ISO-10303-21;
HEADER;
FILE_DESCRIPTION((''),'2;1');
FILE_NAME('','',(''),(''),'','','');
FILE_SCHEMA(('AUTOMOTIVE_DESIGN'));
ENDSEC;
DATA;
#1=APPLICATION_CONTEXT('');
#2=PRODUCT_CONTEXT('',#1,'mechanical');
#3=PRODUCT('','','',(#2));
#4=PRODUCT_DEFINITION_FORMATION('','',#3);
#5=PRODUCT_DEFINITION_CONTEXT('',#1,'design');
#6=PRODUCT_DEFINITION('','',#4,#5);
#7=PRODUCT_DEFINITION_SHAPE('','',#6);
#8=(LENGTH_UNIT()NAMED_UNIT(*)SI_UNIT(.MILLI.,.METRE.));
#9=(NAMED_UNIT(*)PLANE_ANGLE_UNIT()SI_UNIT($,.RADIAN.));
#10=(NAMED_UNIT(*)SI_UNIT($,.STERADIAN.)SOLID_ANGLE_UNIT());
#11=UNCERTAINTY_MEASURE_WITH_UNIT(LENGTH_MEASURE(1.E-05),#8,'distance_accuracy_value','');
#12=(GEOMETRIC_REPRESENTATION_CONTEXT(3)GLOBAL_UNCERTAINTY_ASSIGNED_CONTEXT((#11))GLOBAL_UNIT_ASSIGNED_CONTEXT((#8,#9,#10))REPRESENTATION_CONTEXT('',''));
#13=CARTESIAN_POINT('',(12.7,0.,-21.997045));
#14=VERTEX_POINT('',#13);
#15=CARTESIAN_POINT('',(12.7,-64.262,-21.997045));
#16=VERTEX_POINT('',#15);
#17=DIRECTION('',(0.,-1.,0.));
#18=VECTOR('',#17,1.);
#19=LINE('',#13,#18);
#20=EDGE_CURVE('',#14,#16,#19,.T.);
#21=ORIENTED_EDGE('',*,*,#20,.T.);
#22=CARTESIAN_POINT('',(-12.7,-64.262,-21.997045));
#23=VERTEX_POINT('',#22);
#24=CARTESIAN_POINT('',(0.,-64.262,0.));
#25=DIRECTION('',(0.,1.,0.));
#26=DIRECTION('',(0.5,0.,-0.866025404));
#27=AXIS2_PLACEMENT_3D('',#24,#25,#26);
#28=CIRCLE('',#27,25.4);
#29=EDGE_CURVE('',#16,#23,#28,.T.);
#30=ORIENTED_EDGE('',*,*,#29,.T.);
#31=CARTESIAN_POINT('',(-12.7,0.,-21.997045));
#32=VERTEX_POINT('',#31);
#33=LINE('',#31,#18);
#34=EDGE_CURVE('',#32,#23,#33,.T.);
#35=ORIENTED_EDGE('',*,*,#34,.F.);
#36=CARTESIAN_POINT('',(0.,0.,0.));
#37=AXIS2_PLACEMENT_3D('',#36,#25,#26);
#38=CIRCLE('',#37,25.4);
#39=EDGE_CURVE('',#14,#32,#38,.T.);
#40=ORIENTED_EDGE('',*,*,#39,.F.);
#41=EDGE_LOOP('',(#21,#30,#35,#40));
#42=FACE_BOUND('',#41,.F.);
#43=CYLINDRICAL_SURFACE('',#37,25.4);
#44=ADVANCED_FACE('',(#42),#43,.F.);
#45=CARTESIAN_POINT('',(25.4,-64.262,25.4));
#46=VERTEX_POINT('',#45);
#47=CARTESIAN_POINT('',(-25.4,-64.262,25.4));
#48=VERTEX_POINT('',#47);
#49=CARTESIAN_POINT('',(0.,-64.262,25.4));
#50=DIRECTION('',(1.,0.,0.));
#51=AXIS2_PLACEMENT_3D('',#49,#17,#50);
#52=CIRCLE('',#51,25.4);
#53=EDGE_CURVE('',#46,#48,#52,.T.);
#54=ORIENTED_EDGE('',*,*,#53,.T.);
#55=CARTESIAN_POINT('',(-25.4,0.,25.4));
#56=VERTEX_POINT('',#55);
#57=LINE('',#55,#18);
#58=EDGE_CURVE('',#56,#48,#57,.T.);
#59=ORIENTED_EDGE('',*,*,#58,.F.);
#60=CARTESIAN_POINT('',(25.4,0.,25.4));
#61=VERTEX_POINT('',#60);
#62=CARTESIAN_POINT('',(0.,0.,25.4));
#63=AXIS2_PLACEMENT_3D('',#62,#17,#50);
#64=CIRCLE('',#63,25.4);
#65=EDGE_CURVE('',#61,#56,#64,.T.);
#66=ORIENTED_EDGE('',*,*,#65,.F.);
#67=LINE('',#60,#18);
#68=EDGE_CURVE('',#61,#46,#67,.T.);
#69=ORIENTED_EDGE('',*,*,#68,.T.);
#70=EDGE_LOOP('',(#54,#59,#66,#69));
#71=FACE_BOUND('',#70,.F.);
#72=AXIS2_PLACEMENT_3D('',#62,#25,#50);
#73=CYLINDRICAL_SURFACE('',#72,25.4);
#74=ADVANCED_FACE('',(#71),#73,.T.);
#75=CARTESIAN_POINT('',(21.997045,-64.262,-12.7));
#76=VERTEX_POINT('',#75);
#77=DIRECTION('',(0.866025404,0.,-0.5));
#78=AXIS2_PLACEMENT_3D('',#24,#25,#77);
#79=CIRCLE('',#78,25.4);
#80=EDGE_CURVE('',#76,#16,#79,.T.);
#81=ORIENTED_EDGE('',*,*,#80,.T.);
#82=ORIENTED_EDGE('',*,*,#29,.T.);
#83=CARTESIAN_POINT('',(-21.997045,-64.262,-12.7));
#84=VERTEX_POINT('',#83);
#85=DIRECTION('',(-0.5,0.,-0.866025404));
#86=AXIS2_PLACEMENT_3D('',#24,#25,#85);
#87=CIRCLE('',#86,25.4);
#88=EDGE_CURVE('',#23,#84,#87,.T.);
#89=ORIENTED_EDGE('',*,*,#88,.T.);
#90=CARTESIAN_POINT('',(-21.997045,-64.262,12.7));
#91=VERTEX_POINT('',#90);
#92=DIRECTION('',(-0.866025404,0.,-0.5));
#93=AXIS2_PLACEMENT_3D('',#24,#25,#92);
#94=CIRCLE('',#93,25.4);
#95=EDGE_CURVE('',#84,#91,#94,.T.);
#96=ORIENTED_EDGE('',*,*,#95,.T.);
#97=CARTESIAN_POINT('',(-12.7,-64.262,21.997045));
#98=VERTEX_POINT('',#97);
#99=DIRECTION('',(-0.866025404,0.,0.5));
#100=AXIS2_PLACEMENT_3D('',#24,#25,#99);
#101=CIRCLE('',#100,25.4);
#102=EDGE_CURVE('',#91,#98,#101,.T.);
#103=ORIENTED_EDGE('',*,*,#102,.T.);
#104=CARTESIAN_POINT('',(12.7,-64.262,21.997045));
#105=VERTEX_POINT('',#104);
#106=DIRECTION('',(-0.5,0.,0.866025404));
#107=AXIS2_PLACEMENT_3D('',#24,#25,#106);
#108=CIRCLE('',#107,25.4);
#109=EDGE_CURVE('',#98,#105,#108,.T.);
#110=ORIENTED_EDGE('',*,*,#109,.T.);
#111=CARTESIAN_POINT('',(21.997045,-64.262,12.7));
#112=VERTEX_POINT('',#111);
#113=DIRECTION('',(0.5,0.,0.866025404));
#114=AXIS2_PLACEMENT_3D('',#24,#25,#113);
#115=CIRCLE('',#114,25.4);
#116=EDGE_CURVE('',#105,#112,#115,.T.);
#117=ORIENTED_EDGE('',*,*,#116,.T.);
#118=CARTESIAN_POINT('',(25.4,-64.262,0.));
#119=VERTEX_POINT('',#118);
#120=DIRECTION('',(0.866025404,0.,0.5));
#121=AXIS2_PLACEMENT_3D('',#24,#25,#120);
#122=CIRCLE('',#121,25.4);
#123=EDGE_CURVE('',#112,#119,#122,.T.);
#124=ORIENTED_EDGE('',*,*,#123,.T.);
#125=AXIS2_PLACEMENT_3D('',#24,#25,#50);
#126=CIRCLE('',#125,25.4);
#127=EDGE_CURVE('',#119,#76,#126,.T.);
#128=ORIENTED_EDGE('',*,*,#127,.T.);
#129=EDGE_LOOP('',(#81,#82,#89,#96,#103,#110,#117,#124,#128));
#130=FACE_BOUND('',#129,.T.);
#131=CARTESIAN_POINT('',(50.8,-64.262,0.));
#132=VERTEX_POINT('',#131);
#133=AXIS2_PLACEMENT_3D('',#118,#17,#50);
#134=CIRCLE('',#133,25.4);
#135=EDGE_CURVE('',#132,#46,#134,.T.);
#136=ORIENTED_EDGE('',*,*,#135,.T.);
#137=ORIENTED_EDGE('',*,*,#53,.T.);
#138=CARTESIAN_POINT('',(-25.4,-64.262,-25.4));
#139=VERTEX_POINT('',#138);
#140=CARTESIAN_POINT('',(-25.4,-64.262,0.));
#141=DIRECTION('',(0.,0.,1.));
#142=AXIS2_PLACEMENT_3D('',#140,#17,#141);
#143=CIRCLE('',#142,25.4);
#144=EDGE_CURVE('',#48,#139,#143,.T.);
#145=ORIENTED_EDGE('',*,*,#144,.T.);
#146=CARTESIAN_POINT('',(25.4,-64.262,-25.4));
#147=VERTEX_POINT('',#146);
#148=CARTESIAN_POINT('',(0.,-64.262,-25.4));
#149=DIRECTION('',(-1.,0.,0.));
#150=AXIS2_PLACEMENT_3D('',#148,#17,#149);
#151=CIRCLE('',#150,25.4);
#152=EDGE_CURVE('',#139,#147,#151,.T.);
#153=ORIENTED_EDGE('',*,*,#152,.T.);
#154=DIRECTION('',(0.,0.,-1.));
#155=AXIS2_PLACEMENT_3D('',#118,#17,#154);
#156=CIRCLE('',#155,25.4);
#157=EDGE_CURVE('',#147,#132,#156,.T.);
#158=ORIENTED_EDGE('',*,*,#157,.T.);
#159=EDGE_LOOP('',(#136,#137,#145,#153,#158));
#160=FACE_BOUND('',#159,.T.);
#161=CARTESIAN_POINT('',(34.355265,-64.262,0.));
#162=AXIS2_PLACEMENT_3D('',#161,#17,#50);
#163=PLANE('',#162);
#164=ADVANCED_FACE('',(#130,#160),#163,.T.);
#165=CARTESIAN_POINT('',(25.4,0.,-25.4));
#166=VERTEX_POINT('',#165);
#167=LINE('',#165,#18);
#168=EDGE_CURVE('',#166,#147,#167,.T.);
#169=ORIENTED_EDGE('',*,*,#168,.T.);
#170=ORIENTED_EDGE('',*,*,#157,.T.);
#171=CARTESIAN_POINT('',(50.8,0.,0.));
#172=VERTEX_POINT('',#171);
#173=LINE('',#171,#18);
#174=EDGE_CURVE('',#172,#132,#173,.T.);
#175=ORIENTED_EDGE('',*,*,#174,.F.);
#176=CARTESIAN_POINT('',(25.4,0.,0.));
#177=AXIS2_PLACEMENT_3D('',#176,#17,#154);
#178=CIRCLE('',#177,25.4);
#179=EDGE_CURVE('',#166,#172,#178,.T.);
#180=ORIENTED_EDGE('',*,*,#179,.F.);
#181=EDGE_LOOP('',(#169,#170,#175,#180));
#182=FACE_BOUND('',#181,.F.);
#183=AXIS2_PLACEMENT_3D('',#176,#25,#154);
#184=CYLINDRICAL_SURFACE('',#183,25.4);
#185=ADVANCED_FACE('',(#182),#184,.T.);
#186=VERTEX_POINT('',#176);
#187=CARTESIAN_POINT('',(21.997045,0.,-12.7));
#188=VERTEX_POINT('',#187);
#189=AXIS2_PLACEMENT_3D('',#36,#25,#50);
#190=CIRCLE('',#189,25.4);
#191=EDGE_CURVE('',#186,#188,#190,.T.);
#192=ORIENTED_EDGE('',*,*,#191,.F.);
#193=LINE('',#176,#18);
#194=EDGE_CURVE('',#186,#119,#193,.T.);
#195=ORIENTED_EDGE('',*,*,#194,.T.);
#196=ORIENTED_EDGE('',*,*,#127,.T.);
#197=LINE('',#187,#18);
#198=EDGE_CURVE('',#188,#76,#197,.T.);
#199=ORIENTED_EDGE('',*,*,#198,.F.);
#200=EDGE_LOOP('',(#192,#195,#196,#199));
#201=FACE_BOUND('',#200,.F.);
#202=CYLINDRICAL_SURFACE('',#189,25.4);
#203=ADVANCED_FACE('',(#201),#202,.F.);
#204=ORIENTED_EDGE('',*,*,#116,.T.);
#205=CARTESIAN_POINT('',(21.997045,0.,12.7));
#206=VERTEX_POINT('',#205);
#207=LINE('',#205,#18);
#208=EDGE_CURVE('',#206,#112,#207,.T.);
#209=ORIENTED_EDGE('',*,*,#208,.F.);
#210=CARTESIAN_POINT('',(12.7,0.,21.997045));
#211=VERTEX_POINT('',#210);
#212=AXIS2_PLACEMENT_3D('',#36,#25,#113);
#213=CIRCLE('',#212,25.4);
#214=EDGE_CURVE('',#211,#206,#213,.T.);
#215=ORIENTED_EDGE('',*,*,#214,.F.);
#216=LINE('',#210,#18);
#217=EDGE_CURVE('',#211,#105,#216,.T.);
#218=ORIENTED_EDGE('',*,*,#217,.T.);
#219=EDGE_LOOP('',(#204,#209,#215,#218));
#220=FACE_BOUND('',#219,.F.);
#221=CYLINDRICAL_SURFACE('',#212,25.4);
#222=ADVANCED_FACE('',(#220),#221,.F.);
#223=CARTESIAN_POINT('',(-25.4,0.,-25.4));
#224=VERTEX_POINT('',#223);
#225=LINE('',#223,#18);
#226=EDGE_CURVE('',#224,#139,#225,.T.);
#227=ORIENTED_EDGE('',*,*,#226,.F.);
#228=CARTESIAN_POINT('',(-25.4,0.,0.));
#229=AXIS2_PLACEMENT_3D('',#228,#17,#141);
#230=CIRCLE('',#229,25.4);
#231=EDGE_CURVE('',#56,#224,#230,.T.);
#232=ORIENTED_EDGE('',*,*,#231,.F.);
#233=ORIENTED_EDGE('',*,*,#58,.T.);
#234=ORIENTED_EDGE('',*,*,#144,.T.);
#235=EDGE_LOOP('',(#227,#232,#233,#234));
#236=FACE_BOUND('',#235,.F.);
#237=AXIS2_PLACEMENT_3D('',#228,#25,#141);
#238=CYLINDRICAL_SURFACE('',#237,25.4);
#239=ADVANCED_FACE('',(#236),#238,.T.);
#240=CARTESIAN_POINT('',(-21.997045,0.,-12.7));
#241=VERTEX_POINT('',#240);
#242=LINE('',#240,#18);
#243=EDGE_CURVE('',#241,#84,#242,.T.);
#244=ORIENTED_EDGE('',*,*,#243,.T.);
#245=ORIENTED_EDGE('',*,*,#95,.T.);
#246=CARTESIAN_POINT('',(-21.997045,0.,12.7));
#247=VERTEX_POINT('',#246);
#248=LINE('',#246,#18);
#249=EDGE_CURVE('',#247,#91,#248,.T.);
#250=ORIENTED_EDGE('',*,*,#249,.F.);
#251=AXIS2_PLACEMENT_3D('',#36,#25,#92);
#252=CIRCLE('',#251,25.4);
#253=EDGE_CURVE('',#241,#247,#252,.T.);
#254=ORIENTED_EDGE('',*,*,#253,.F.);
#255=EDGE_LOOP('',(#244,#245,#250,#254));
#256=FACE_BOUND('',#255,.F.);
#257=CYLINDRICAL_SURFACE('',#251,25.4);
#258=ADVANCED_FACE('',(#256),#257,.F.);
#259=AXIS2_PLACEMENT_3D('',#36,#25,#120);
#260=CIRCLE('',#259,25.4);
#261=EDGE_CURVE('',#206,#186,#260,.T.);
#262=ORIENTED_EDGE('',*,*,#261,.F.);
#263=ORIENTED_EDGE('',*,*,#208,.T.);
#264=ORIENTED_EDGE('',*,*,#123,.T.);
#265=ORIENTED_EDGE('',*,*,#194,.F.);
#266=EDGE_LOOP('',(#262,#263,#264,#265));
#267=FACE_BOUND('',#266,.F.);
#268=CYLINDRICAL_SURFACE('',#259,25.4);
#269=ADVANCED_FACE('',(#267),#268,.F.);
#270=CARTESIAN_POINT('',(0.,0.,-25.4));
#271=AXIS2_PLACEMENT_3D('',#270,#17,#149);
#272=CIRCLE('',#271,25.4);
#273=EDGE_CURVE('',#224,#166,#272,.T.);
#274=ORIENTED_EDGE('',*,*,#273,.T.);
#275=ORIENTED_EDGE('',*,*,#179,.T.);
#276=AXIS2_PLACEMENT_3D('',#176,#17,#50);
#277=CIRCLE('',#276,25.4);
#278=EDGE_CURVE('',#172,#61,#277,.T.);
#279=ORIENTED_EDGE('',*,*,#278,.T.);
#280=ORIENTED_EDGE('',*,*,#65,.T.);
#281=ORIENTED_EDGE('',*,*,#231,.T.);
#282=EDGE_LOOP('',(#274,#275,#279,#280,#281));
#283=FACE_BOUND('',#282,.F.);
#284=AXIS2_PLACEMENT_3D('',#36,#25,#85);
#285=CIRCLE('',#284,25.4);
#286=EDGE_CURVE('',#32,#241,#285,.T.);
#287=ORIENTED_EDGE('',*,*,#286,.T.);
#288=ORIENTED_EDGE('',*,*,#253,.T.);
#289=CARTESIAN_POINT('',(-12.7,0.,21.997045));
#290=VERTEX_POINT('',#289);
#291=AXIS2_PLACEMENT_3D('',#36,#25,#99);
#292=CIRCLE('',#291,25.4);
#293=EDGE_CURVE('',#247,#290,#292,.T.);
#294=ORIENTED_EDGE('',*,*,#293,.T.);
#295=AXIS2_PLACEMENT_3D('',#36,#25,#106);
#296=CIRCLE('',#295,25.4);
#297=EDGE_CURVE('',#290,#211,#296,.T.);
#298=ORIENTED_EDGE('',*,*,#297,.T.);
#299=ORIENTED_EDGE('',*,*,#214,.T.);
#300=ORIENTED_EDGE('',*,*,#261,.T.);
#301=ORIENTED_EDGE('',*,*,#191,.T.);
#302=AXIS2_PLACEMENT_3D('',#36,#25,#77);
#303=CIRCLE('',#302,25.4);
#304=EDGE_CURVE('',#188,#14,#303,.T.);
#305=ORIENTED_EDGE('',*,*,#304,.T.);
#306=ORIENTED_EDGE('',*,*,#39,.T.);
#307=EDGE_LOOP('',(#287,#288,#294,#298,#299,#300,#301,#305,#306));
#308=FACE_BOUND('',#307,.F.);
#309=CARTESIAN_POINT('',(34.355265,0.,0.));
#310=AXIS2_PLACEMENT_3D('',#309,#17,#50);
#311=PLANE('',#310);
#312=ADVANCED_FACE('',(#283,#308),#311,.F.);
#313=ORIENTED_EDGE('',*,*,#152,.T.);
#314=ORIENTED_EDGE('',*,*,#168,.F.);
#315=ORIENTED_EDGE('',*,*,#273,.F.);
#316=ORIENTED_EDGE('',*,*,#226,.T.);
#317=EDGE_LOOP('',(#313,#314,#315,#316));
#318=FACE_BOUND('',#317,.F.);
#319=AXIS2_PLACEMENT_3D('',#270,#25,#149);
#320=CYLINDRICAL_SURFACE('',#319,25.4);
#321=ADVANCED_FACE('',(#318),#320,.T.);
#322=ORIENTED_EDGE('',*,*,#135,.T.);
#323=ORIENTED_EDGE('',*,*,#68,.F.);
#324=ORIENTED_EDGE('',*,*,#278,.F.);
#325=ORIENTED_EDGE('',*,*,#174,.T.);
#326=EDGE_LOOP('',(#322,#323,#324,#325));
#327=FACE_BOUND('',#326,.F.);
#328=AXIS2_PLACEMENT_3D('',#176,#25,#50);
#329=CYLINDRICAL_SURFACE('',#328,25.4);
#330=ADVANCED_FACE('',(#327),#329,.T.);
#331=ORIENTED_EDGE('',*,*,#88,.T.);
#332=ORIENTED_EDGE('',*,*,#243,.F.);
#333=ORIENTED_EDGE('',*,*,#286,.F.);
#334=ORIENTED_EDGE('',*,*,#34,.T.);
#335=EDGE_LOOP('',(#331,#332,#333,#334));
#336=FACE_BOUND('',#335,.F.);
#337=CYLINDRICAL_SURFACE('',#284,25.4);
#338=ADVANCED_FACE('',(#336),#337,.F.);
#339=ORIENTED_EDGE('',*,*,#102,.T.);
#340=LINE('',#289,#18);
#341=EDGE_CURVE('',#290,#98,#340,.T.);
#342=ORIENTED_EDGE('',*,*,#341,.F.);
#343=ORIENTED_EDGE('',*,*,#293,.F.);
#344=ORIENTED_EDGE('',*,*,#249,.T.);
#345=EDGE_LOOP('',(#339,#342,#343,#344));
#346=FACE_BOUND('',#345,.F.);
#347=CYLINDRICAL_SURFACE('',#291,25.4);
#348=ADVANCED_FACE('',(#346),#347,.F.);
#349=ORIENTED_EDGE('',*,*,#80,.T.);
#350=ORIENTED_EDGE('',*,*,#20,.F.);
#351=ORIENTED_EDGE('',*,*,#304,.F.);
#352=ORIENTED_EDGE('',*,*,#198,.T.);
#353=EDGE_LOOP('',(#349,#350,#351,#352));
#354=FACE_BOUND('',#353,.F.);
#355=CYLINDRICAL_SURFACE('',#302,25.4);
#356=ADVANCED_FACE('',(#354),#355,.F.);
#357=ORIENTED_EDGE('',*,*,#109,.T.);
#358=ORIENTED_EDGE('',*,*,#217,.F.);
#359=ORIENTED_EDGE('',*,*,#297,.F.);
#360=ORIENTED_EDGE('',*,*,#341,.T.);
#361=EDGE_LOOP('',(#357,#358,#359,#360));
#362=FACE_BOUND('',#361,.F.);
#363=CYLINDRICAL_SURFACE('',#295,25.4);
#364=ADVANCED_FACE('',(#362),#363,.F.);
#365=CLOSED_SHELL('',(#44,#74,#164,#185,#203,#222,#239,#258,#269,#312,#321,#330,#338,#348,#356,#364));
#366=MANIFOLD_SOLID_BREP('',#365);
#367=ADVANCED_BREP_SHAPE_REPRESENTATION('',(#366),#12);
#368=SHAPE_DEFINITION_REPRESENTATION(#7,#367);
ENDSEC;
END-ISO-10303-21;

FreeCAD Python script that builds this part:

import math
import FreeCAD as App
import Part
import Sketcher
Q = App.Units.Quantity

doc = App.newDocument("Part")
params = doc.addObject("Spreadsheet::Sheet", "Params")
for row, (alias, value) in enumerate([
    ("sketch1_radius", "1 in"),
    ("pad1_length", "2.53 in"),
], start=1):
    params.set(f"A{row}", alias)
    params.set(f"B{row}", "=" + value)
    params.setAlias(f"B{row}", alias)

body = doc.addObject("PartDesign::Body", "Body")

sketch1 = doc.addObject("Sketcher::SketchObject", "Sketch")
body.addObject(sketch1)
sketch1.AttachmentSupport = (doc.XZ_Plane, [""])
sketch1.MapMode = "FlatFace"
sketch1.addGeometry(Part.ArcOfCircle(Part.Circle(App.Vector(0, -25.4, 0), App.Vector(0, 0, 1), 25.4), math.radians(180), math.radians(360)), False)
sketch1.addGeometry(Part.ArcOfCircle(Part.Circle(App.Vector(25.4, 0, 0), App.Vector(0, 0, 1), 25.4), math.radians(-90), math.radians(0)), False)
sketch1.addGeometry(Part.ArcOfCircle(Part.Circle(App.Vector(25.4, 0, 0), App.Vector(0, 0, 1), 25.4), math.radians(0), math.radians(90)), False)
sketch1.addGeometry(Part.ArcOfCircle(Part.Circle(App.Vector(0, 25.4, 0), App.Vector(0, 0, 1), 25.4), math.radians(0), math.radians(180)), False)
sketch1.addGeometry(Part.ArcOfCircle(Part.Circle(App.Vector(-25.4, 0, 0), App.Vector(0, 0, 1), 25.4), math.radians(90), math.radians(270)), False)
sketch1.addGeometry(Part.ArcOfCircle(Part.Circle(App.Vector(0, 0, 0), App.Vector(0, 0, 1), 25.4), math.radians(0), math.radians(30)), False)
sketch1.addGeometry(Part.ArcOfCircle(Part.Circle(App.Vector(0, 0, 0), App.Vector(0, 0, 1), 25.4), math.radians(-30), math.radians(0)), False)
sketch1.addGeometry(Part.ArcOfCircle(Part.Circle(App.Vector(0, 0, 0), App.Vector(0, 0, 1), 25.4), math.radians(-60), math.radians(-30)), False)
sketch1.addGeometry(Part.ArcOfCircle(Part.Circle(App.Vector(0, 0, 0), App.Vector(0, 0, 1), 25.4), math.radians(-120), math.radians(-60)), False)
sketch1.addGeometry(Part.ArcOfCircle(Part.Circle(App.Vector(0, 0, 0), App.Vector(0, 0, 1), 25.4), math.radians(-150), math.radians(-120)), False)
sketch1.addGeometry(Part.ArcOfCircle(Part.Circle(App.Vector(0, 0, 0), App.Vector(0, 0, 1), 25.4), math.radians(150), math.radians(210)), False)
sketch1.addGeometry(Part.ArcOfCircle(Part.Circle(App.Vector(0, 0, 0), App.Vector(0, 0, 1), 25.4), math.radians(120), math.radians(150)), False)
sketch1.addGeometry(Part.ArcOfCircle(Part.Circle(App.Vector(0, 0, 0), App.Vector(0, 0, 1), 25.4), math.radians(60), math.radians(120)), False)
sketch1.addGeometry(Part.ArcOfCircle(Part.Circle(App.Vector(0, 0, 0), App.Vector(0, 0, 1), 25.4), math.radians(30), math.radians(60)), False)
sketch1.addConstraint(Sketcher.Constraint("Coincident", 0, 2, 1, 1))
sketch1.addConstraint(Sketcher.Constraint("Tangent", 1, 2, 2, 1))
sketch1.addConstraint(Sketcher.Constraint("Coincident", 2, 2, 3, 1))
sketch1.addConstraint(Sketcher.Constraint("Coincident", 3, 2, 4, 1))
sketch1.addConstraint(Sketcher.Constraint("Coincident", 4, 2, 0, 1))
sketch1.addConstraint(Sketcher.Constraint("Tangent", 5, 1, 6, 2))
sketch1.addConstraint(Sketcher.Constraint("Tangent", 6, 1, 7, 2))
sketch1.addConstraint(Sketcher.Constraint("Tangent", 7, 1, 8, 2))
sketch1.addConstraint(Sketcher.Constraint("Tangent", 8, 1, 9, 2))
sketch1.addConstraint(Sketcher.Constraint("Tangent", 9, 1, 10, 2))
sketch1.addConstraint(Sketcher.Constraint("Tangent", 10, 1, 11, 2))
sketch1.addConstraint(Sketcher.Constraint("Tangent", 11, 1, 12, 2))
sketch1.addConstraint(Sketcher.Constraint("Tangent", 12, 1, 13, 2))
sketch1.addConstraint(Sketcher.Constraint("Tangent", 13, 1, 5, 2))
sketch1.addConstraint(Sketcher.Constraint("Coincident", 5, 3, -1, 1))
sketch1.addConstraint(Sketcher.Constraint("Coincident", 7, 3, -1, 1))
sketch1.addConstraint(Sketcher.Constraint("Coincident", 9, 3, -1, 1))
sketch1.addConstraint(Sketcher.Constraint("Coincident", 11, 3, -1, 1))
sketch1.addConstraint(Sketcher.Constraint("Coincident", 5, 1, 1, 3))
sketch1.addConstraint(Sketcher.Constraint("Equal", 0, 1))
sketch1.addConstraint(Sketcher.Constraint("Equal", 1, 2))
sketch1.addConstraint(Sketcher.Constraint("Equal", 2, 3))
sketch1.addConstraint(Sketcher.Constraint("Equal", 3, 4))
sketch1.addConstraint(Sketcher.Constraint("Equal", 4, 5))
sketch1.addConstraint(Sketcher.Constraint("Symmetric", 0, 3, 3, 3, -1, 1))
sketch1.addConstraint(Sketcher.Constraint("Symmetric", 1, 3, 4, 3, -1, 1))
sketch1.addConstraint(Sketcher.Constraint("Symmetric", 2, 2, 3, 2, -2))
sketch1.addConstraint(Sketcher.Constraint("PointOnObject", 1, 2, -1))
sketch1.addConstraint(Sketcher.Constraint("Horizontal", 3, 3, 2, 2))
sketch1.addConstraint(Sketcher.Constraint("Horizontal", 7, 1, 8, 1))
sketch1.addConstraint(Sketcher.Constraint("Horizontal", 6, 1, 9, 1))
sketch1.addConstraint(Sketcher.Constraint("Horizontal", 11, 1, 12, 1))
sketch1.addConstraint(Sketcher.Constraint("Horizontal", 10, 1, 13, 1))
sketch1.addConstraint(Sketcher.Constraint("Vertical", 9, 1, 10, 1))
sketch1.addConstraint(Sketcher.Constraint("Vertical", 8, 1, 11, 1))
sketch1.addConstraint(Sketcher.Constraint("Radius", 0, Q("1 in")))
sketch1.addConstraint(Sketcher.Constraint("DistanceX", 11, 1, 12, 1, Q("1 in")))
sketch1.addConstraint(Sketcher.Constraint("DistanceY", 6, 1, -1, 1, Q("0.5 in")))
sketch1.setExpression("Constraints[35]", "Params.sketch1_radius")
pad1 = doc.addObject("PartDesign::Pad", "Pad")
body.addObject(pad1)
pad1.Profile = sketch1
pad1.setExpression("Length", "Params.pad1_length")

doc.recompute()
